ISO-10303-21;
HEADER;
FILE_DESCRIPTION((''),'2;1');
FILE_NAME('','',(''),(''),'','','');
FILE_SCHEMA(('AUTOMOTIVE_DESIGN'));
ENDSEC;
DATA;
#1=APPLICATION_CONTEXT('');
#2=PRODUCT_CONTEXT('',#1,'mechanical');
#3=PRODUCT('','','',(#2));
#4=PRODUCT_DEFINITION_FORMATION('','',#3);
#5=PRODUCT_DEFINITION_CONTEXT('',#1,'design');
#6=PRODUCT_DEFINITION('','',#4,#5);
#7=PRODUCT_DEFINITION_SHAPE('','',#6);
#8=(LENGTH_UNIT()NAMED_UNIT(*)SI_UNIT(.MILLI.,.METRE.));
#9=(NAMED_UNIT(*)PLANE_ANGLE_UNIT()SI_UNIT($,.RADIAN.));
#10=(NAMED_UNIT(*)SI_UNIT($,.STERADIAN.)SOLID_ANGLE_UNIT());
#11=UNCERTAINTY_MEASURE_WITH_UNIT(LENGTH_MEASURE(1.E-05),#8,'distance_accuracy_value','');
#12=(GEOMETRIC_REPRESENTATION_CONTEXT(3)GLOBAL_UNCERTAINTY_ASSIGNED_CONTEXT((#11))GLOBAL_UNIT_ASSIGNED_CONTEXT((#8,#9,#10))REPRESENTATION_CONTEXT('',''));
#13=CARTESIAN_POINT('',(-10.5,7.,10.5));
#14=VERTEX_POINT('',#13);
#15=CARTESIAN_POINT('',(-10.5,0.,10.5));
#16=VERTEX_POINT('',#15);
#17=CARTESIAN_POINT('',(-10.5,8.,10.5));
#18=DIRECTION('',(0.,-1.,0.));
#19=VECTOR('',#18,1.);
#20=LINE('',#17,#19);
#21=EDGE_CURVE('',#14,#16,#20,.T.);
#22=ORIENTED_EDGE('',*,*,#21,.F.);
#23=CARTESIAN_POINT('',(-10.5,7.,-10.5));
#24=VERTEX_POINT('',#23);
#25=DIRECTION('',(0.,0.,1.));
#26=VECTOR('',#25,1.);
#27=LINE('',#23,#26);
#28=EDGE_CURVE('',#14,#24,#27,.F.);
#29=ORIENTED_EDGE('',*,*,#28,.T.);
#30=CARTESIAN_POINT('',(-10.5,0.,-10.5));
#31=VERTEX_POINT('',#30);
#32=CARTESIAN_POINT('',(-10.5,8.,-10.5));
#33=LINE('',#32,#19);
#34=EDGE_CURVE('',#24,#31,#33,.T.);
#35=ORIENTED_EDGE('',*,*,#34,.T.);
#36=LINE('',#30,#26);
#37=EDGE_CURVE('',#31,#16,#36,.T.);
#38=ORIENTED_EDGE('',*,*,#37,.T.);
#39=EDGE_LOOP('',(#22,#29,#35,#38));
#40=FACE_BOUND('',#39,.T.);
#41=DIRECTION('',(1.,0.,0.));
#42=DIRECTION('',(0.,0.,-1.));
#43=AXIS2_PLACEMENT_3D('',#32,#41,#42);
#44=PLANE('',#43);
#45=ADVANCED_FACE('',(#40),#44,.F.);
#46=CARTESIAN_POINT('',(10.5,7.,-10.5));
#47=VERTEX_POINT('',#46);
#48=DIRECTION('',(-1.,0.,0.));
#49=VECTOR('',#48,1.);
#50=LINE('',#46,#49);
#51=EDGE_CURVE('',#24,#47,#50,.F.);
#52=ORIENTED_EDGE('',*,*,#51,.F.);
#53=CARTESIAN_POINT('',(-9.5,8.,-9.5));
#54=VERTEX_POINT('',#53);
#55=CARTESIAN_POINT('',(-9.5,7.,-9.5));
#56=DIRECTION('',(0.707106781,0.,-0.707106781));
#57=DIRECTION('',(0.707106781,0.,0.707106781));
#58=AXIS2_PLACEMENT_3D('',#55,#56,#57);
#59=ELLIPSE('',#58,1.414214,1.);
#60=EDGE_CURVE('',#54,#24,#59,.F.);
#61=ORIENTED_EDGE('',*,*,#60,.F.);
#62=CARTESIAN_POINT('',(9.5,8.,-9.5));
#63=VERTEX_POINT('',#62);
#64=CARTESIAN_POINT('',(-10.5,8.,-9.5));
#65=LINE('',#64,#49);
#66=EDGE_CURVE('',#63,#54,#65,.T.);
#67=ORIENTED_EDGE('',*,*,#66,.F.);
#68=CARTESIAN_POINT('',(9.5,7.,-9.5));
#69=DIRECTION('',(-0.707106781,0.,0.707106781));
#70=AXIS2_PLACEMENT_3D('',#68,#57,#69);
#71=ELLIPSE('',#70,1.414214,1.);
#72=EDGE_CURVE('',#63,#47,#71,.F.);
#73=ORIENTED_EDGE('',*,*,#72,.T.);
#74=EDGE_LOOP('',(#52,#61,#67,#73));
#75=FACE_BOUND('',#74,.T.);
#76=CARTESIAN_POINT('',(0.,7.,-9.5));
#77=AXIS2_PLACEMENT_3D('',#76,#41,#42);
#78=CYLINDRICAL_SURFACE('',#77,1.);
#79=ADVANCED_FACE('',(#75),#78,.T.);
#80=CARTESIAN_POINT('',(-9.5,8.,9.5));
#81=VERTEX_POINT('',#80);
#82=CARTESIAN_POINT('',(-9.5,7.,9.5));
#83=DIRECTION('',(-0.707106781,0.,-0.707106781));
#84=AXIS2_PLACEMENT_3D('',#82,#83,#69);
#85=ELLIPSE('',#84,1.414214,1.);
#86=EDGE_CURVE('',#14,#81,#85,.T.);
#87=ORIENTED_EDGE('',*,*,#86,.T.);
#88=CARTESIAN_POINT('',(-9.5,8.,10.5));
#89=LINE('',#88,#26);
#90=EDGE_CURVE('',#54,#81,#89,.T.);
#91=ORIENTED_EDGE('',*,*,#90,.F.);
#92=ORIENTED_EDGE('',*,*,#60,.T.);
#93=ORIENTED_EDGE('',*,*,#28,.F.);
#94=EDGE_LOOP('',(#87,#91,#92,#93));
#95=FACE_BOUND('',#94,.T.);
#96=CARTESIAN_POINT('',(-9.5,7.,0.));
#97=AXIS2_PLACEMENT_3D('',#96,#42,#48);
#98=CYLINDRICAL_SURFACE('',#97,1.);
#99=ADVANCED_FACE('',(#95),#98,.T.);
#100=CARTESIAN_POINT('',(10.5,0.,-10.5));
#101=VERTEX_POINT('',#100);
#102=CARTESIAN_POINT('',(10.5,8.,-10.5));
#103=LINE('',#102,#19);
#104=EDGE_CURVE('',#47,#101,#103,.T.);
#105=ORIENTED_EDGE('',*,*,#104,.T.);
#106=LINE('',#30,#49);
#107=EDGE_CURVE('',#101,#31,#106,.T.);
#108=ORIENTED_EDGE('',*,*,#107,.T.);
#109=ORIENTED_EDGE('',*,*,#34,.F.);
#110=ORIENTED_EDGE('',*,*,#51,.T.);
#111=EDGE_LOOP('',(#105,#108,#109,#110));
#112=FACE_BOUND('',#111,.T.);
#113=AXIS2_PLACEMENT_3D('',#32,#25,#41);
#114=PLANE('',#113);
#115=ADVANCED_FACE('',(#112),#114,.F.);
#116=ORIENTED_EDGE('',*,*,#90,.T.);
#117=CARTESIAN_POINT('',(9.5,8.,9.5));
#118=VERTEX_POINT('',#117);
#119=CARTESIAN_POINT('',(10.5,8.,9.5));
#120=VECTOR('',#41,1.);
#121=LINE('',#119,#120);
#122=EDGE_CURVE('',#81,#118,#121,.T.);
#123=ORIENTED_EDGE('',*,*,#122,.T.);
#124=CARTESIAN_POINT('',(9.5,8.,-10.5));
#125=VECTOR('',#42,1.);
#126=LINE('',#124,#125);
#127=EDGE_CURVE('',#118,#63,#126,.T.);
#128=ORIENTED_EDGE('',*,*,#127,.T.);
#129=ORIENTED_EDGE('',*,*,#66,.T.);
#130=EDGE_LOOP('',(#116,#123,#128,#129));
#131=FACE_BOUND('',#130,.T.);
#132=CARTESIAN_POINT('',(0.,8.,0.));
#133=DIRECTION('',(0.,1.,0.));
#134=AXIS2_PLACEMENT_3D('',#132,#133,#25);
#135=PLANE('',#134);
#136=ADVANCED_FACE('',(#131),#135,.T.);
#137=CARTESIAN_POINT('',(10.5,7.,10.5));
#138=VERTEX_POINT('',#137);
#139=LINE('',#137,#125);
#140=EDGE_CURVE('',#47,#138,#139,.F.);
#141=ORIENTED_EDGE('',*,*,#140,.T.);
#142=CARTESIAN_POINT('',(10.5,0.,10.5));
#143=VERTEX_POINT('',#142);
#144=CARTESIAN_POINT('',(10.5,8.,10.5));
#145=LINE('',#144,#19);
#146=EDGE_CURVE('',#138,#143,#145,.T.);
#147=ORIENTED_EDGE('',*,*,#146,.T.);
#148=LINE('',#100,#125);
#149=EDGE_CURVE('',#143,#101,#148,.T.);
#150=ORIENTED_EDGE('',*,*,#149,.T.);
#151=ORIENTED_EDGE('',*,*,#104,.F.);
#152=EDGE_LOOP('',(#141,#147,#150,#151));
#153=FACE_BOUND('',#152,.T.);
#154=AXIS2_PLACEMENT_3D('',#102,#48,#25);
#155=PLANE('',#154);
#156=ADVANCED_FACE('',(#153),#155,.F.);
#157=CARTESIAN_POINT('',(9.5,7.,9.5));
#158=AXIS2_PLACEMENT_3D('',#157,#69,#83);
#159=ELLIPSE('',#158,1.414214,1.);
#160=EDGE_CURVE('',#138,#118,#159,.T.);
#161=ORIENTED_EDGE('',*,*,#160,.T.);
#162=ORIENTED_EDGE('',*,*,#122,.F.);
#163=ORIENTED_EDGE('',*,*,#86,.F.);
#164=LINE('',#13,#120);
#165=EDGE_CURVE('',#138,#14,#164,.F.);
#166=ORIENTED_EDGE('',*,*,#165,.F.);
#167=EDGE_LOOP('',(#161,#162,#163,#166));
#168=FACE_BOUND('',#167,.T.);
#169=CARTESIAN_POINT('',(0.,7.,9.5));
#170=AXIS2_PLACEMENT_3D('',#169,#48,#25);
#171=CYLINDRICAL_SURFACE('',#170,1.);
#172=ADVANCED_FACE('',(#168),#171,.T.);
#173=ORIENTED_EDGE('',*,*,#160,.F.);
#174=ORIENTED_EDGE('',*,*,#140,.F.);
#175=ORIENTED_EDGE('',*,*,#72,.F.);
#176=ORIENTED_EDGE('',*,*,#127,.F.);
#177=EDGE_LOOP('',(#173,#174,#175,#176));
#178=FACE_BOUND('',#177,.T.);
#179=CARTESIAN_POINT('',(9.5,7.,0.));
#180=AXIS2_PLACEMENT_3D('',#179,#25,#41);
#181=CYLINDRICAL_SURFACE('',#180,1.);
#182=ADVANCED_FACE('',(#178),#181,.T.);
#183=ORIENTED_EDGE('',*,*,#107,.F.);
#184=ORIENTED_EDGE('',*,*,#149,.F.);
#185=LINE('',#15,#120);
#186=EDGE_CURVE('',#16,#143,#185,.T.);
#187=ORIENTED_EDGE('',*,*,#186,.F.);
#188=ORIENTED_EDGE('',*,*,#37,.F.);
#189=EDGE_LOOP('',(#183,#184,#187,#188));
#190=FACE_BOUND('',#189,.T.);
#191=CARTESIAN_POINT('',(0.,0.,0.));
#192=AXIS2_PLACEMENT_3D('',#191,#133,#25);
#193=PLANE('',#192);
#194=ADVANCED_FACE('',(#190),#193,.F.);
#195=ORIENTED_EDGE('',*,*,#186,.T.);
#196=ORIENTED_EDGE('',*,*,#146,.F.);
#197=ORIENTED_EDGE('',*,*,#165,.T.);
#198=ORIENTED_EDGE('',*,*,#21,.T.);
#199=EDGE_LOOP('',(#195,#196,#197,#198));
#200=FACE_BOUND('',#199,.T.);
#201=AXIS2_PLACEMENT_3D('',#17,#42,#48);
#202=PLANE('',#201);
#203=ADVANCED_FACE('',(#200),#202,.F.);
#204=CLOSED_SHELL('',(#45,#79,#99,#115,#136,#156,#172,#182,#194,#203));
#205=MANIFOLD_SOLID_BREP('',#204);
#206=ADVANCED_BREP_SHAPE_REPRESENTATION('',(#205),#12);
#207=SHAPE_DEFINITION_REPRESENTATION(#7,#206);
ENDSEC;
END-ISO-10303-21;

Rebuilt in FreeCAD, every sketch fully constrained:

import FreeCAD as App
import Part
import Sketcher

V = App.Vector
Q = App.Units.Quantity


def edges_at(feature, points):
    """Names of the edges that pass closest to the given points."""
    edges = feature.Shape.Edges
    near = lambda p: min(range(len(edges)), key=lambda i: edges[i].distToShape(Part.Vertex(*p))[0])
    return sorted({f"Edge{near(p) + 1}" for p in points})


def add_polygon(sketch, points):
    """Adds a closed chain of lines whose ends are joined by coincident constraints."""
    first, n = sketch.GeometryCount, len(points)
    for a, b in zip(points, points[1:] + points[:1]):
        sketch.addGeometry(Part.LineSegment(App.Vector(*a, 0), App.Vector(*b, 0)), False)
    for i in range(n):
        sketch.addConstraint(Sketcher.Constraint("Coincident", first + i, 2, first + (i + 1) % n, 1))

doc = App.newDocument("Part")
body = doc.addObject("PartDesign::Body", "Body")

sketch1 = doc.addObject("Sketcher::SketchObject", "Sketch")
body.addObject(sketch1)
sketch1.AttachmentSupport = (doc.XZ_Plane, [""])
sketch1.MapMode = "FlatFace"
add_polygon(sketch1, [(-10.5, -10.5), (-10.5, 10.5), (10.5, 10.5), (10.5, -10.5)])
sketch1.addConstraint([
    Sketcher.Constraint("Vertical", 0),
    Sketcher.Constraint("Horizontal", 1),
    Sketcher.Constraint("Vertical", 2),
    Sketcher.Constraint("Horizontal", 3),
    Sketcher.Constraint("Symmetric", 0, 2, 2, 2, -1, 1),
    Sketcher.Constraint("Equal", 3, 0),
    Sketcher.Constraint("DistanceX", 1, 1, 1, 2, Q("21 mm")),
])
pad1 = doc.addObject("PartDesign::Pad", "Pad")
body.addObject(pad1)
pad1.Profile = sketch1
pad1.Length = 8
pad1.Reversed = True
doc.recompute()

fillet = doc.addObject("PartDesign::Fillet", "Fillet")
body.addObject(fillet)
fillet.Base = (pad1, edges_at(pad1, [
    (-10.5, 8, 0),
    (0, 8, 10.5),
    (10.5, 8, 0),
    (0, 8, -10.5),
]))
fillet.Radius = 1

doc.recompute()
